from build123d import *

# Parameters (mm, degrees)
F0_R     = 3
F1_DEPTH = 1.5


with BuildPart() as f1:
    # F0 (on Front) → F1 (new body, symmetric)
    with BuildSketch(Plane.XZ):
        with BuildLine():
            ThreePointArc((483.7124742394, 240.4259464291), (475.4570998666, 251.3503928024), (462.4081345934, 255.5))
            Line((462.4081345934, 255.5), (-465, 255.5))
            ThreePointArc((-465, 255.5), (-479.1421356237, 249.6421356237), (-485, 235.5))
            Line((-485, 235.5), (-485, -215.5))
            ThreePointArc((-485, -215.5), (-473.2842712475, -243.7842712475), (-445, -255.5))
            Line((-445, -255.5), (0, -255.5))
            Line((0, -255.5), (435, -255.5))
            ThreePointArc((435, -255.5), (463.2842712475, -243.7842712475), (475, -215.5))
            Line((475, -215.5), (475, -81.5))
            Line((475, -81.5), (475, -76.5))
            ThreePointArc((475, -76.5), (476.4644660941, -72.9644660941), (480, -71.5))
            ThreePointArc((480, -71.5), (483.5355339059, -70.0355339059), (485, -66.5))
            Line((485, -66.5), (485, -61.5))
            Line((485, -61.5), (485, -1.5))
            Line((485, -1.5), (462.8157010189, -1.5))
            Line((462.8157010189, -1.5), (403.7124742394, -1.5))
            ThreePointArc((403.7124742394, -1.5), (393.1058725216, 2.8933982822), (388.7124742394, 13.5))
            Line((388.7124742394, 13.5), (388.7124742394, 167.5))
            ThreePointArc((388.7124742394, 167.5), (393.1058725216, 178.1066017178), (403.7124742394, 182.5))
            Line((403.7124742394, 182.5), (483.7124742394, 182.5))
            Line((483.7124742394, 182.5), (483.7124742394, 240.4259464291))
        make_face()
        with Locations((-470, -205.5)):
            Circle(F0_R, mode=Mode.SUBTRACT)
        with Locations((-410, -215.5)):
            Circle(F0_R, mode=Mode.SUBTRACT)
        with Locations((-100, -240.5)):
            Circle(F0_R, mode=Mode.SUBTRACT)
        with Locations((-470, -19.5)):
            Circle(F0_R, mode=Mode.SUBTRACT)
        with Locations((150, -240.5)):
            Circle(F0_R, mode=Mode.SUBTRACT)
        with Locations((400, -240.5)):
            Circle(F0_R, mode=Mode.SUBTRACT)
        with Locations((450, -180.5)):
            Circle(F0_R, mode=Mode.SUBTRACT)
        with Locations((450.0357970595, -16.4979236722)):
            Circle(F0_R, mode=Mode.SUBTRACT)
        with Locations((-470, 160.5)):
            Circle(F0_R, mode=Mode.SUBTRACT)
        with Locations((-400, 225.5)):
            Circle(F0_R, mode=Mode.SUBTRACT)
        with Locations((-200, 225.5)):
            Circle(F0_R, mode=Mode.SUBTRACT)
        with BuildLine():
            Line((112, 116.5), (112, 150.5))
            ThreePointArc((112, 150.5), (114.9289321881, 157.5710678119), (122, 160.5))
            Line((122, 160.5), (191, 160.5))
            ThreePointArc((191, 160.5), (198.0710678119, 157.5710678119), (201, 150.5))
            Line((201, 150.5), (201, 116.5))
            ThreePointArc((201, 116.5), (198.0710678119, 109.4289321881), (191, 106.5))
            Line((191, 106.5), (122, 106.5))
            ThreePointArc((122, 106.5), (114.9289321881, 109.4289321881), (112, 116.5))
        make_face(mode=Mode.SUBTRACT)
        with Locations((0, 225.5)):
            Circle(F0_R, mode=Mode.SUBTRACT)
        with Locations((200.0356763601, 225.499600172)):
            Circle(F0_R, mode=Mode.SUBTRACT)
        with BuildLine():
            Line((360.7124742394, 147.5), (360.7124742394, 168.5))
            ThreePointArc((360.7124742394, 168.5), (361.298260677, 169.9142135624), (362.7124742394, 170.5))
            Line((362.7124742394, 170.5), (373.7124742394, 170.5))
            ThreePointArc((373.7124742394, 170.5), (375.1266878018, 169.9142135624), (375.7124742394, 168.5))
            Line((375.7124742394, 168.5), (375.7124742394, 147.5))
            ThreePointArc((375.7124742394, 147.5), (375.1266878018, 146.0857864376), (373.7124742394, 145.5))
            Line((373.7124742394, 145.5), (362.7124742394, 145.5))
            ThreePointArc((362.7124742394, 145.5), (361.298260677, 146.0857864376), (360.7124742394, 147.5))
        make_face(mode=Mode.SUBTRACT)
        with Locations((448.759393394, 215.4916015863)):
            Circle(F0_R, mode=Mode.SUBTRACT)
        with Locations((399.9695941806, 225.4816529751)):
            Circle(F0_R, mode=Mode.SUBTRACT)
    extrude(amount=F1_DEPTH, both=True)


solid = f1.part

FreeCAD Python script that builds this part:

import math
import FreeCAD as App
import Part
import Sketcher
from FreeCAD import Vector
Q = App.Units.Quantity

doc = App.newDocument("Part")
params = doc.addObject("Spreadsheet::Sheet", "Params")
for row, (alias, value) in enumerate([
    ("sketch1_diameter", "6 mm"),
    ("sketch1_radius", "20 mm"),
    ("sketch1_radius2", "40 mm"),
    ("sketch1_radius3", "5 mm"),
    ("sketch1_radius4", "15 mm"),
    ("pad1_length", "3 mm"),
], start=1):
    params.set(f"A{row}", alias)
    params.set(f"B{row}", "=" + value)
    params.setAlias(f"B{row}", alias)

body = doc.addObject("PartDesign::Body", "Body")

sketch1 = body.newObject("Sketcher::SketchObject", "Sketch")
sketch1.AttachmentSupport = (doc.getObject("XZ_Plane"), [""])
sketch1.MapMode = "FlatFace"
sketch1.addGeometry([
    Part.ArcOfCircle(Part.Circle(Vector(462.408135, 232.908135, 0), Vector(0, 0, 1), 22.591865), math.radians(19.436766), math.radians(90)),
    Part.LineSegment(Vector(462.408135, 255.5, 0), Vector(-465, 255.5, 0)),
    Part.ArcOfCircle(Part.Circle(Vector(-465, 235.5, 0), Vector(0, 0, 1), 20), math.radians(90), math.radians(180)),
    Part.LineSegment(Vector(-485, 235.5, 0), Vector(-485, -215.5, 0)),
    Part.ArcOfCircle(Part.Circle(Vector(-445, -215.5, 0), Vector(0, 0, 1), 40), math.radians(180), math.radians(270)),
    Part.LineSegment(Vector(-445, -255.5, 0), Vector(435, -255.5, 0)),
    Part.ArcOfCircle(Part.Circle(Vector(435, -215.5, 0), Vector(0, 0, 1), 40), math.radians(-90), math.radians(0)),
    Part.LineSegment(Vector(475, -215.5, 0), Vector(475, -76.5, 0)),
    Part.ArcOfCircle(Part.Circle(Vector(480, -76.5, 0), Vector(0, 0, 1), 5), math.radians(90), math.radians(180)),
    Part.ArcOfCircle(Part.Circle(Vector(480, -66.5, 0), Vector(0, 0, 1), 5), math.radians(-90), math.radians(0)),
    Part.LineSegment(Vector(485, -66.5, 0), Vector(485, -1.5, 0)),
    Part.LineSegment(Vector(485, -1.5, 0), Vector(403.712474, -1.5, 0)),
    Part.ArcOfCircle(Part.Circle(Vector(403.712474, 13.5, 0), Vector(0, 0, 1), 15), math.radians(180), math.radians(270)),
    Part.LineSegment(Vector(388.712474, 13.5, 0), Vector(388.712474, 167.5, 0)),
    Part.ArcOfCircle(Part.Circle(Vector(403.712474, 167.5, 0), Vector(0, 0, 1), 15), math.radians(90), math.radians(180)),
    Part.LineSegment(Vector(403.712474, 182.5, 0), Vector(483.712474, 182.5, 0)),
    Part.LineSegment(Vector(483.712474, 182.5, 0), Vector(483.712474, 240.425946, 0)),
    Part.Circle(Vector(-410, -215.5, 0), Vector(0, 0, 1), 3),
    Part.Circle(Vector(-470, -205.5, 0), Vector(0, 0, 1), 3),
    Part.Circle(Vector(-100, -240.5, 0), Vector(0, 0, 1), 3),
    Part.Circle(Vector(-470, -19.5, 0), Vector(0, 0, 1), 3),
    Part.Circle(Vector(150, -240.5, 0), Vector(0, 0, 1), 3),
    Part.Circle(Vector(400, -240.5, 0), Vector(0, 0, 1), 3),
    Part.Circle(Vector(450, -180.5, 0), Vector(0, 0, 1), 3),
    Part.Circle(Vector(450.035797, -16.497924, 0), Vector(0, 0, 1), 3),
    Part.Circle(Vector(-470, 160.5, 0), Vector(0, 0, 1), 3),
    Part.Circle(Vector(-400, 225.5, 0), Vector(0, 0, 1), 3),
    Part.Circle(Vector(-200, 225.5, 0), Vector(0, 0, 1), 3),
    Part.ArcOfCircle(Part.Circle(Vector(122, 116.5, 0), Vector(0, 0, 1), 10), math.radians(180), math.radians(270)),
    Part.LineSegment(Vector(112, 116.5, 0), Vector(112, 150.5, 0)),
    Part.ArcOfCircle(Part.Circle(Vector(122, 150.5, 0), Vector(0, 0, 1), 10), math.radians(90), math.radians(180)),
    Part.LineSegment(Vector(122, 160.5, 0), Vector(191, 160.5, 0)),
    Part.ArcOfCircle(Part.Circle(Vector(191, 150.5, 0), Vector(0, 0, 1), 10), math.radians(0), math.radians(90)),
    Part.LineSegment(Vector(201, 150.5, 0), Vector(201, 116.5, 0)),
    Part.ArcOfCircle(Part.Circle(Vector(191, 116.5, 0), Vector(0, 0, 1), 10), math.radians(-90), math.radians(0)),
    Part.LineSegment(Vector(191, 106.5, 0), Vector(122, 106.5, 0)),
    Part.Circle(Vector(0, 225.5, 0), Vector(0, 0, 1), 3),
    Part.Circle(Vector(200.035676, 225.4996, 0), Vector(0, 0, 1), 3),
    Part.ArcOfCircle(Part.Circle(Vector(362.712474, 147.5, 0), Vector(0, 0, 1), 2), math.radians(180), math.radians(270)),
    Part.LineSegment(Vector(360.712474, 147.5, 0), Vector(360.712474, 168.5, 0)),
    Part.ArcOfCircle(Part.Circle(Vector(362.712474, 168.5, 0), Vector(0, 0, 1), 2), math.radians(90), math.radians(180)),
    Part.LineSegment(Vector(362.712474, 170.5, 0), Vector(373.712474, 170.5, 0)),
    Part.ArcOfCircle(Part.Circle(Vector(373.712474, 168.5, 0), Vector(0, 0, 1), 2), math.radians(0), math.radians(90)),
    Part.LineSegment(Vector(375.712474, 168.5, 0), Vector(375.712474, 147.5, 0)),
    Part.ArcOfCircle(Part.Circle(Vector(373.712474, 147.5, 0), Vector(0, 0, 1), 2), math.radians(-90), math.radians(0)),
    Part.LineSegment(Vector(373.712474, 145.5, 0), Vector(362.712474, 145.5, 0)),
    Part.Circle(Vector(399.969594, 225.481653, 0), Vector(0, 0, 1), 3),
    Part.Circle(Vector(448.759393, 215.491602, 0), Vector(0, 0, 1), 3),
], False)
sketch1.addConstraint([
    Sketcher.Constraint("Tangent", 0, 2, 1, 1),
    Sketcher.Constraint("Tangent", 1, 2, 2, 1),
    Sketcher.Constraint("Tangent", 2, 2, 3, 1),
    Sketcher.Constraint("Tangent", 3, 2, 4, 1),
    Sketcher.Constraint("Tangent", 4, 2, 5, 1),
    Sketcher.Constraint("Tangent", 5, 2, 6, 1),
    Sketcher.Constraint("Tangent", 6, 2, 7, 1),
    Sketcher.Constraint("Tangent", 7, 2, 8, 2),
    Sketcher.Constraint("Tangent", 8, 1, 9, 1),
    Sketcher.Constraint("Tangent", 9, 2, 10, 1),
    Sketcher.Constraint("Coincident", 10, 2, 11, 1),
    Sketcher.Constraint("Tangent", 11, 2, 12, 2),
    Sketcher.Constraint("Tangent", 12, 1, 13, 1),
    Sketcher.Constraint("Tangent", 13, 2, 14, 2),
    Sketcher.Constraint("Tangent", 14, 1, 15, 1),
    Sketcher.Constraint("Coincident", 15, 2, 16, 1),
    Sketcher.Constraint("Coincident", 16, 2, 0, 1),
    Sketcher.Constraint("Tangent", 28, 1, 29, 1),
    Sketcher.Constraint("Tangent", 29, 2, 30, 2),
    Sketcher.Constraint("Tangent", 30, 1, 31, 1),
    Sketcher.Constraint("Tangent", 31, 2, 32, 2),
    Sketcher.Constraint("Tangent", 32, 1, 33, 1),
    Sketcher.Constraint("Tangent", 33, 2, 34, 2),
    Sketcher.Constraint("Tangent", 34, 1, 35, 1),
    Sketcher.Constraint("Tangent", 35, 2, 28, 2),
    Sketcher.Constraint("Tangent", 38, 1, 39, 1),
    Sketcher.Constraint("Tangent", 39, 2, 40, 2),
    Sketcher.Constraint("Tangent", 40, 1, 41, 1),
    Sketcher.Constraint("Tangent", 41, 2, 42, 2),
    Sketcher.Constraint("Tangent", 42, 1, 43, 1),
    Sketcher.Constraint("Tangent", 43, 2, 44, 2),
    Sketcher.Constraint("Tangent", 44, 1, 45, 1),
    Sketcher.Constraint("Tangent", 45, 2, 38, 2),
    Sketcher.Constraint("Horizontal", 1),
    Sketcher.Constraint("Vertical", 3),
    Sketcher.Constraint("Horizontal", 5),
    Sketcher.Constraint("Vertical", 7),
    Sketcher.Constraint("Vertical", 10),
    Sketcher.Constraint("Horizontal", 11),
    Sketcher.Constraint("Vertical", 13),
    Sketcher.Constraint("Horizontal", 15),
    Sketcher.Constraint("Vertical", 16),
    Sketcher.Constraint("Vertical", 29),
    Sketcher.Constraint("Horizontal", 31),
    Sketcher.Constraint("Vertical", 33),
    Sketcher.Constraint("Horizontal", 35),
    Sketcher.Constraint("Vertical", 39),
    Sketcher.Constraint("Horizontal", 41),
    Sketcher.Constraint("Vertical", 43),
    Sketcher.Constraint("Horizontal", 45),
    Sketcher.Constraint("Equal", 4, 6),
    Sketcher.Constraint("Equal", 8, 9),
    Sketcher.Constraint("Equal", 12, 14),
    Sketcher.Constraint("Equal", 17, 18),
    Sketcher.Constraint("Equal", 18, 19),
    Sketcher.Constraint("Equal", 19, 20),
    Sketcher.Constraint("Equal", 20, 21),
    Sketcher.Constraint("Equal", 21, 22),
    Sketcher.Constraint("Equal", 22, 23),
    Sketcher.Constraint("Equal", 23, 24),
    Sketcher.Constraint("Equal", 24, 25),
    Sketcher.Constraint("Equal", 25, 26),
    Sketcher.Constraint("Equal", 26, 27),
    Sketcher.Constraint("Equal", 28, 30),
    Sketcher.Constraint("Equal", 30, 32),
    Sketcher.Constraint("Equal", 32, 34),
    Sketcher.Constraint("Equal", 27, 36),
    Sketcher.Constraint("Equal", 36, 37),
    Sketcher.Constraint("Equal", 38, 40),
    Sketcher.Constraint("Equal", 40, 42),
    Sketcher.Constraint("Equal", 42, 44),
    Sketcher.Constraint("Equal", 37, 46),
    Sketcher.Constraint("Equal", 46, 47),
    Sketcher.Constraint("PointOnObject", 36, 3, -2),
    Sketcher.Constraint("Horizontal", 6, 3, 17, 3),
    Sketcher.Constraint("Horizontal", 19, 3, 21, 3),
    Sketcher.Constraint("Horizontal", 21, 3, 22, 3),
    Sketcher.Constraint("Horizontal", 26, 3, 27, 3),
    Sketcher.Constraint("Horizontal", 27, 3, 36, 3),
    Sketcher.Constraint("Horizontal", 25, 3, 30, 1),
    Sketcher.Constraint("Vertical", 8, 3, 9, 3),
    Sketcher.Constraint("Vertical", 18, 3, 20, 3),
    Sketcher.Constraint("Vertical", 20, 3, 25, 3),
    Sketcher.Constraint("Diameter", 17, Q("6 mm")),
    Sketcher.Constraint("Radius", 2, Q("20 mm")),
    Sketcher.Constraint("Radius", 4, Q("40 mm")),
    Sketcher.Constraint("Radius", 8, Q("5 mm")),
    Sketcher.Constraint("Radius", 12, Q("15 mm")),
    Sketcher.Constraint("Radius", 28, Q("10 mm")),
    Sketcher.Constraint("Radius", 38, Q("2 mm")),
    Sketcher.Constraint("DistanceX", 5, 1, 5, 2, Q("880 mm")),
    Sketcher.Constraint("DistanceX", 15, 1, 15, 2, Q("80 mm")),
    Sketcher.Constraint("DistanceX", 31, 1, 31, 2, Q("69 mm")),
    Sketcher.Constraint("DistanceX", 41, 1, 41, 2, Q("11 mm")),
    Sketcher.Constraint("DistanceY", 3, 2, 3, 1, Q("451 mm")),
    Sketcher.Constraint("DistanceY", 7, 1, 7, 2, Q("139 mm")),
    Sketcher.Constraint("DistanceY", 10, 1, 10, 2, Q("65 mm")),
    Sketcher.Constraint("DistanceY", 13, 1, 13, 2, Q("154 mm")),
    Sketcher.Constraint("DistanceY", 29, 1, 29, 2, Q("34 mm")),
    Sketcher.Constraint("DistanceY", 39, 1, 39, 2, Q("21 mm")),
    Sketcher.Constraint("DistanceX", 2, 3, -1, 1, Q("465 mm")),
    Sketcher.Constraint("DistanceX", 17, 3, -1, 1, Q("410 mm")),
    Sketcher.Constraint("DistanceX", 18, 3, -1, 1, Q("470 mm")),
    Sketcher.Constraint("DistanceX", 19, 3, -1, 1, Q("100 mm")),
    Sketcher.Constraint("DistanceX", -1, 1, 21, 3, Q("150 mm")),
    Sketcher.Constraint("DistanceX", -1, 1, 22, 3, Q("400 mm")),
    Sketcher.Constraint("DistanceX", -1, 1, 23, 3, Q("450 mm")),
    Sketcher.Constraint("DistanceX", 26, 3, -1, 1, Q("400 mm")),
    Sketcher.Constraint("DistanceX", 27, 3, -1, 1, Q("200 mm")),
    Sketcher.Constraint("DistanceX", -1, 1, 28, 3, Q("122 mm")),
    Sketcher.Constraint("DistanceY", -1, 1, 2, 3, Q("235.5 mm")),
    Sketcher.Constraint("DistanceY", 18, 3, -1, 1, Q("205.5 mm")),
    Sketcher.Constraint("DistanceY", 19, 3, -1, 1, Q("240.5 mm")),
    Sketcher.Constraint("DistanceY", 20, 3, -1, 1, Q("19.5 mm")),
    Sketcher.Constraint("DistanceY", 23, 3, -1, 1, Q("180.5 mm")),
    Sketcher.Constraint("DistanceY", -1, 1, 25, 3, Q("160.5 mm")),
    Sketcher.Constraint("DistanceY", -1, 1, 26, 3, Q("225.5 mm")),
    Sketcher.Constraint("DistanceY", -1, 1, 38, 3, Q("147.5 mm")),
    Sketcher.Constraint("Radius", 0, Q("22.591865 mm")),
    Sketcher.Constraint("DistanceY", -1, 1, 37, 3, Q("225.4996 mm")),
    Sketcher.Constraint("DistanceY", -1, 1, 47, 3, Q("215.491602 mm")),
    Sketcher.Constraint("DistanceX", 1, 2, 1, 1, Q("927.408135 mm")),
    Sketcher.Constraint("DistanceX", 11, 2, 11, 1, Q("81.287526 mm")),
    Sketcher.Constraint("DistanceX", -1, 1, 24, 3, Q("450.035797 mm")),
    Sketcher.Constraint("DistanceY", 24, 3, -1, 1, Q("16.497924 mm")),
    Sketcher.Constraint("DistanceX", -1, 1, 37, 3, Q("200.035676 mm")),
    Sketcher.Constraint("DistanceX", -1, 1, 38, 3, Q("362.712474 mm")),
    Sketcher.Constraint("DistanceX", -1, 1, 46, 3, Q("399.969594 mm")),
    Sketcher.Constraint("DistanceY", -1, 1, 46, 3, Q("225.481653 mm")),
    Sketcher.Constraint("DistanceX", -1, 1, 47, 3, Q("448.759393 mm")),
])
sketch1.setExpression("Constraints[83]", "Params.sketch1_diameter")
sketch1.setExpression("Constraints[84]", "Params.sketch1_radius")
sketch1.setExpression("Constraints[85]", "Params.sketch1_radius2")
sketch1.setExpression("Constraints[86]", "Params.sketch1_radius3")
sketch1.setExpression("Constraints[87]", "Params.sketch1_radius4")
pad1 = body.newObject("PartDesign::Pad", "Pad")
pad1.Profile = sketch1
pad1.setExpression("Length", "Params.pad1_length")
pad1.Midplane = True

doc.recompute()
